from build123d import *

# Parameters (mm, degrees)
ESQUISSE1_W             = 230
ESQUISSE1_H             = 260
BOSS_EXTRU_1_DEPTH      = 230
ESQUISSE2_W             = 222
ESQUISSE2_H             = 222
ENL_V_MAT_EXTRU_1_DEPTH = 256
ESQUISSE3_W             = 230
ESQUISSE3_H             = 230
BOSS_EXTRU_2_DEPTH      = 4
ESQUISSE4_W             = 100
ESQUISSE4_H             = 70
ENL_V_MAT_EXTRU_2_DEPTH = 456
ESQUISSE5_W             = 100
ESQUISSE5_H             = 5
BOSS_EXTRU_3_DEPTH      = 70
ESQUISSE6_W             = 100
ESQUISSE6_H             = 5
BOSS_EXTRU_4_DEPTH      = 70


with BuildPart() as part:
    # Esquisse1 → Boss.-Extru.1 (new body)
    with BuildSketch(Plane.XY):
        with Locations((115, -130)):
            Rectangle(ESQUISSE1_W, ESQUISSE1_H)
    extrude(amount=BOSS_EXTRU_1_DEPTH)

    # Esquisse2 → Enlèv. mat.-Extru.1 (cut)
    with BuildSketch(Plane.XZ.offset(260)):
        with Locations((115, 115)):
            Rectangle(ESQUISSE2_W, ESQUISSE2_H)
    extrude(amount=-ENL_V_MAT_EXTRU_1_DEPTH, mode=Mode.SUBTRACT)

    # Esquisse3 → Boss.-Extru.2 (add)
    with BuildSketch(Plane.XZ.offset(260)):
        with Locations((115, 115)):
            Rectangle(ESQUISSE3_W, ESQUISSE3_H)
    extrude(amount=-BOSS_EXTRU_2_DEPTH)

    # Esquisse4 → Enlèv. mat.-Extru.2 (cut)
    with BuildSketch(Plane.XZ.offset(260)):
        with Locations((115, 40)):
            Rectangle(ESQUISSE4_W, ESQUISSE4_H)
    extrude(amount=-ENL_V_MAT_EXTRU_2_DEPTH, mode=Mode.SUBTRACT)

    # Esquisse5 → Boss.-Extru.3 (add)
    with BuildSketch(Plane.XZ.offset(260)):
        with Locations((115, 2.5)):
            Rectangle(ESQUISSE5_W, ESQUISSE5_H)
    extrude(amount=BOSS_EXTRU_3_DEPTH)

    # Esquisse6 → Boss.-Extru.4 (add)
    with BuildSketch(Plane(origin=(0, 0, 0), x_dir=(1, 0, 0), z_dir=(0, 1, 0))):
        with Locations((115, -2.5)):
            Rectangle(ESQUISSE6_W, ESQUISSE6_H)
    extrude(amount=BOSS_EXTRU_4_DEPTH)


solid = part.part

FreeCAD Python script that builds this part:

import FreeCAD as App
import Part
import Sketcher

V = App.Vector
Q = App.Units.Quantity

doc = App.newDocument("Part")
body = doc.addObject("PartDesign::Body", "Body")

# Sketch on XY plane
sketch1 = doc.addObject("Sketcher::SketchObject", "Sketch")
body.addObject(sketch1)
sketch1.AttachmentSupport = (doc.XY_Plane, [""])
sketch1.MapMode = "FlatFace"
sketch1.addGeometry(Part.LineSegment(V(0, 0, 0), V(0, -260, 0)), False)
sketch1.addGeometry(Part.LineSegment(V(0, -260, 0), V(230, -260, 0)), False)
sketch1.addGeometry(Part.LineSegment(V(230, -260, 0), V(230, 0, 0)), False)
sketch1.addGeometry(Part.LineSegment(V(230, 0, 0), V(0, 0, 0)), False)
sketch1.addConstraint(Sketcher.Constraint("Coincident", 0, 2, 1, 1))
sketch1.addConstraint(Sketcher.Constraint("Coincident", 1, 2, 2, 1))
sketch1.addConstraint(Sketcher.Constraint("Coincident", 2, 2, 3, 1))
sketch1.addConstraint(Sketcher.Constraint("Coincident", 3, 2, 0, 1))
sketch1.addConstraint(Sketcher.Constraint("Vertical", 0))
sketch1.addConstraint(Sketcher.Constraint("Horizontal", 1))
sketch1.addConstraint(Sketcher.Constraint("Vertical", 2))
sketch1.addConstraint(Sketcher.Constraint("Horizontal", 3))
sketch1.addConstraint(Sketcher.Constraint("Coincident", 3, 2, -1, 1))
sketch1.addConstraint(Sketcher.Constraint("DistanceX", 1, 1, 1, 2, Q("230 mm")))
sketch1.addConstraint(Sketcher.Constraint("DistanceY", 0, 2, 0, 1, Q("260 mm")))
pad1 = doc.addObject("PartDesign::Pad", "Pad")
body.addObject(pad1)
pad1.Profile = sketch1
pad1.Length = 230

# Sketch on XZ plane
sketch2 = doc.addObject("Sketcher::SketchObject", "Sketch001")
body.addObject(sketch2)
sketch2.AttachmentSupport = (doc.XZ_Plane, [""])
sketch2.MapMode = "FlatFace"
sketch2.AttachmentOffset = App.Placement(V(0, 0, 260), App.Rotation())
sketch2.addGeometry(Part.LineSegment(V(4, 226, 0), V(4, 4, 0)), False)
sketch2.addGeometry(Part.LineSegment(V(4, 4, 0), V(226, 4, 0)), False)
sketch2.addGeometry(Part.LineSegment(V(226, 4, 0), V(226, 226, 0)), False)
sketch2.addGeometry(Part.LineSegment(V(226, 226, 0), V(4, 226, 0)), False)
sketch2.addConstraint(Sketcher.Constraint("Coincident", 0, 2, 1, 1))
sketch2.addConstraint(Sketcher.Constraint("Coincident", 1, 2, 2, 1))
sketch2.addConstraint(Sketcher.Constraint("Coincident", 2, 2, 3, 1))
sketch2.addConstraint(Sketcher.Constraint("Coincident", 3, 2, 0, 1))
sketch2.addConstraint(Sketcher.Constraint("Vertical", 0))
sketch2.addConstraint(Sketcher.Constraint("Horizontal", 1))
sketch2.addConstraint(Sketcher.Constraint("Vertical", 2))
sketch2.addConstraint(Sketcher.Constraint("Horizontal", 3))
sketch2.addConstraint(Sketcher.Constraint("Equal", 3, 0))
sketch2.addConstraint(Sketcher.Constraint("DistanceX", 1, 1, 1, 2, Q("222 mm")))
sketch2.addConstraint(Sketcher.Constraint("DistanceX", -1, 1, 0, 2, Q("4 mm")))
sketch2.addConstraint(Sketcher.Constraint("DistanceY", -1, 1, 0, 2, Q("4 mm")))
pocket1 = doc.addObject("PartDesign::Pocket", "Pocket")
body.addObject(pocket1)
pocket1.Profile = sketch2
pocket1.Length = 256

# Sketch on XZ plane
sketch3 = doc.addObject("Sketcher::SketchObject", "Sketch002")
body.addObject(sketch3)
sketch3.AttachmentSupport = (doc.XZ_Plane, [""])
sketch3.MapMode = "FlatFace"
sketch3.AttachmentOffset = App.Placement(V(0, 0, 260), App.Rotation())
sketch3.addGeometry(Part.LineSegment(V(0, 230, 0), V(0, 0, 0)), False)
sketch3.addGeometry(Part.LineSegment(V(0, 0, 0), V(230, 0, 0)), False)
sketch3.addGeometry(Part.LineSegment(V(230, 0, 0), V(230, 230, 0)), False)
sketch3.addGeometry(Part.LineSegment(V(230, 230, 0), V(0, 230, 0)), False)
sketch3.addConstraint(Sketcher.Constraint("Coincident", 0, 2, 1, 1))
sketch3.addConstraint(Sketcher.Constraint("Coincident", 1, 2, 2, 1))
sketch3.addConstraint(Sketcher.Constraint("Coincident", 2, 2, 3, 1))
sketch3.addConstraint(Sketcher.Constraint("Coincident", 3, 2, 0, 1))
sketch3.addConstraint(Sketcher.Constraint("Vertical", 0))
sketch3.addConstraint(Sketcher.Constraint("Horizontal", 1))
sketch3.addConstraint(Sketcher.Constraint("Vertical", 2))
sketch3.addConstraint(Sketcher.Constraint("Horizontal", 3))
sketch3.addConstraint(Sketcher.Constraint("Coincident", 0, 2, -1, 1))
sketch3.addConstraint(Sketcher.Constraint("Equal", 3, 0))
sketch3.addConstraint(Sketcher.Constraint("DistanceX", 1, 1, 1, 2, Q("230 mm")))
pad2 = doc.addObject("PartDesign::Pad", "Pad001")
body.addObject(pad2)
pad2.Profile = sketch3
pad2.Length = 4
pad2.Reversed = True

# Sketch on XZ plane
sketch4 = doc.addObject("Sketcher::SketchObject", "Sketch003")
body.addObject(sketch4)
sketch4.AttachmentSupport = (doc.XZ_Plane, [""])
sketch4.MapMode = "FlatFace"
sketch4.AttachmentOffset = App.Placement(V(0, 0, 260), App.Rotation())
sketch4.addGeometry(Part.LineSegment(V(65, 75, 0), V(65, 5, 0)), False)
sketch4.addGeometry(Part.LineSegment(V(65, 5, 0), V(165, 5, 0)), False)
sketch4.addGeometry(Part.LineSegment(V(165, 5, 0), V(165, 75, 0)), False)
sketch4.addGeometry(Part.LineSegment(V(165, 75, 0), V(65, 75, 0)), False)
sketch4.addConstraint(Sketcher.Constraint("Coincident", 0, 2, 1, 1))
sketch4.addConstraint(Sketcher.Constraint("Coincident", 1, 2, 2, 1))
sketch4.addConstraint(Sketcher.Constraint("Coincident", 2, 2, 3, 1))
sketch4.addConstraint(Sketcher.Constraint("Coincident", 3, 2, 0, 1))
sketch4.addConstraint(Sketcher.Constraint("Vertical", 0))
sketch4.addConstraint(Sketcher.Constraint("Horizontal", 1))
sketch4.addConstraint(Sketcher.Constraint("Vertical", 2))
sketch4.addConstraint(Sketcher.Constraint("Horizontal", 3))
sketch4.addConstraint(Sketcher.Constraint("DistanceX", 1, 1, 1, 2, Q("100 mm")))
sketch4.addConstraint(Sketcher.Constraint("DistanceY", 0, 2, 0, 1, Q("70 mm")))
sketch4.addConstraint(Sketcher.Constraint("DistanceX", -1, 1, 0, 2, Q("65 mm")))
sketch4.addConstraint(Sketcher.Constraint("DistanceY", -1, 1, 0, 2, Q("5 mm")))
pocket2 = doc.addObject("PartDesign::Pocket", "Pocket001")
body.addObject(pocket2)
pocket2.Profile = sketch4
pocket2.Length = 456

# Sketch on XZ plane
sketch5 = doc.addObject("Sketcher::SketchObject", "Sketch004")
body.addObject(sketch5)
sketch5.AttachmentSupport = (doc.XZ_Plane, [""])
sketch5.MapMode = "FlatFace"
sketch5.AttachmentOffset = App.Placement(V(0, 0, 260), App.Rotation())
sketch5.addGeometry(Part.LineSegment(V(65, 5, 0), V(65, 0, 0)), False)
sketch5.addGeometry(Part.LineSegment(V(65, 0, 0), V(165, 0, 0)), False)
sketch5.addGeometry(Part.LineSegment(V(165, 0, 0), V(165, 5, 0)), False)
sketch5.addGeometry(Part.LineSegment(V(165, 5, 0), V(65, 5, 0)), False)
sketch5.addConstraint(Sketcher.Constraint("Coincident", 0, 2, 1, 1))
sketch5.addConstraint(Sketcher.Constraint("Coincident", 1, 2, 2, 1))
sketch5.addConstraint(Sketcher.Constraint("Coincident", 2, 2, 3, 1))
sketch5.addConstraint(Sketcher.Constraint("Coincident", 3, 2, 0, 1))
sketch5.addConstraint(Sketcher.Constraint("Vertical", 0))
sketch5.addConstraint(Sketcher.Constraint("Horizontal", 1))
sketch5.addConstraint(Sketcher.Constraint("Vertical", 2))
sketch5.addConstraint(Sketcher.Constraint("Horizontal", 3))
sketch5.addConstraint(Sketcher.Constraint("PointOnObject", 0, 2, -1))
sketch5.addConstraint(Sketcher.Constraint("DistanceX", 1, 1, 1, 2, Q("100 mm")))
sketch5.addConstraint(Sketcher.Constraint("DistanceY", 0, 2, 0, 1, Q("5 mm")))
sketch5.addConstraint(Sketcher.Constraint("DistanceX", -1, 1, 0, 2, Q("65 mm")))
pad3 = doc.addObject("PartDesign::Pad", "Pad002")
body.addObject(pad3)
pad3.Profile = sketch5
pad3.Length = 70

# Sketch on XZ plane
sketch6 = doc.addObject("Sketcher::SketchObject", "Sketch005")
body.addObject(sketch6)
sketch6.AttachmentSupport = (doc.XZ_Plane, [""])
sketch6.MapMode = "FlatFace"
sketch6.addGeometry(Part.LineSegment(V(65, 0, 0), V(65, 5, 0)), False)
sketch6.addGeometry(Part.LineSegment(V(65, 5, 0), V(165, 5, 0)), False)
sketch6.addGeometry(Part.LineSegment(V(165, 5, 0), V(165, 0, 0)), False)
sketch6.addGeometry(Part.LineSegment(V(165, 0, 0), V(65, 0, 0)), False)
sketch6.addConstraint(Sketcher.Constraint("Coincident", 0, 2, 1, 1))
sketch6.addConstraint(Sketcher.Constraint("Coincident", 1, 2, 2, 1))
sketch6.addConstraint(Sketcher.Constraint("Coincident", 2, 2, 3, 1))
sketch6.addConstraint(Sketcher.Constraint("Coincident", 3, 2, 0, 1))
sketch6.addConstraint(Sketcher.Constraint("Vertical", 0))
sketch6.addConstraint(Sketcher.Constraint("Horizontal", 1))
sketch6.addConstraint(Sketcher.Constraint("Vertical", 2))
sketch6.addConstraint(Sketcher.Constraint("Horizontal", 3))
sketch6.addConstraint(Sketcher.Constraint("PointOnObject", 2, 2, -1))
sketch6.addConstraint(Sketcher.Constraint("DistanceX", 1, 1, 1, 2, Q("100 mm")))
sketch6.addConstraint(Sketcher.Constraint("DistanceY", 0, 1, 0, 2, Q("5 mm")))
sketch6.addConstraint(Sketcher.Constraint("DistanceX", -1, 1, 0, 2, Q("65 mm")))
pad4 = doc.addObject("PartDesign::Pad", "Pad003")
body.addObject(pad4)
pad4.Profile = sketch6
pad4.Length = 70
pad4.Reversed = True

doc.recompute()
